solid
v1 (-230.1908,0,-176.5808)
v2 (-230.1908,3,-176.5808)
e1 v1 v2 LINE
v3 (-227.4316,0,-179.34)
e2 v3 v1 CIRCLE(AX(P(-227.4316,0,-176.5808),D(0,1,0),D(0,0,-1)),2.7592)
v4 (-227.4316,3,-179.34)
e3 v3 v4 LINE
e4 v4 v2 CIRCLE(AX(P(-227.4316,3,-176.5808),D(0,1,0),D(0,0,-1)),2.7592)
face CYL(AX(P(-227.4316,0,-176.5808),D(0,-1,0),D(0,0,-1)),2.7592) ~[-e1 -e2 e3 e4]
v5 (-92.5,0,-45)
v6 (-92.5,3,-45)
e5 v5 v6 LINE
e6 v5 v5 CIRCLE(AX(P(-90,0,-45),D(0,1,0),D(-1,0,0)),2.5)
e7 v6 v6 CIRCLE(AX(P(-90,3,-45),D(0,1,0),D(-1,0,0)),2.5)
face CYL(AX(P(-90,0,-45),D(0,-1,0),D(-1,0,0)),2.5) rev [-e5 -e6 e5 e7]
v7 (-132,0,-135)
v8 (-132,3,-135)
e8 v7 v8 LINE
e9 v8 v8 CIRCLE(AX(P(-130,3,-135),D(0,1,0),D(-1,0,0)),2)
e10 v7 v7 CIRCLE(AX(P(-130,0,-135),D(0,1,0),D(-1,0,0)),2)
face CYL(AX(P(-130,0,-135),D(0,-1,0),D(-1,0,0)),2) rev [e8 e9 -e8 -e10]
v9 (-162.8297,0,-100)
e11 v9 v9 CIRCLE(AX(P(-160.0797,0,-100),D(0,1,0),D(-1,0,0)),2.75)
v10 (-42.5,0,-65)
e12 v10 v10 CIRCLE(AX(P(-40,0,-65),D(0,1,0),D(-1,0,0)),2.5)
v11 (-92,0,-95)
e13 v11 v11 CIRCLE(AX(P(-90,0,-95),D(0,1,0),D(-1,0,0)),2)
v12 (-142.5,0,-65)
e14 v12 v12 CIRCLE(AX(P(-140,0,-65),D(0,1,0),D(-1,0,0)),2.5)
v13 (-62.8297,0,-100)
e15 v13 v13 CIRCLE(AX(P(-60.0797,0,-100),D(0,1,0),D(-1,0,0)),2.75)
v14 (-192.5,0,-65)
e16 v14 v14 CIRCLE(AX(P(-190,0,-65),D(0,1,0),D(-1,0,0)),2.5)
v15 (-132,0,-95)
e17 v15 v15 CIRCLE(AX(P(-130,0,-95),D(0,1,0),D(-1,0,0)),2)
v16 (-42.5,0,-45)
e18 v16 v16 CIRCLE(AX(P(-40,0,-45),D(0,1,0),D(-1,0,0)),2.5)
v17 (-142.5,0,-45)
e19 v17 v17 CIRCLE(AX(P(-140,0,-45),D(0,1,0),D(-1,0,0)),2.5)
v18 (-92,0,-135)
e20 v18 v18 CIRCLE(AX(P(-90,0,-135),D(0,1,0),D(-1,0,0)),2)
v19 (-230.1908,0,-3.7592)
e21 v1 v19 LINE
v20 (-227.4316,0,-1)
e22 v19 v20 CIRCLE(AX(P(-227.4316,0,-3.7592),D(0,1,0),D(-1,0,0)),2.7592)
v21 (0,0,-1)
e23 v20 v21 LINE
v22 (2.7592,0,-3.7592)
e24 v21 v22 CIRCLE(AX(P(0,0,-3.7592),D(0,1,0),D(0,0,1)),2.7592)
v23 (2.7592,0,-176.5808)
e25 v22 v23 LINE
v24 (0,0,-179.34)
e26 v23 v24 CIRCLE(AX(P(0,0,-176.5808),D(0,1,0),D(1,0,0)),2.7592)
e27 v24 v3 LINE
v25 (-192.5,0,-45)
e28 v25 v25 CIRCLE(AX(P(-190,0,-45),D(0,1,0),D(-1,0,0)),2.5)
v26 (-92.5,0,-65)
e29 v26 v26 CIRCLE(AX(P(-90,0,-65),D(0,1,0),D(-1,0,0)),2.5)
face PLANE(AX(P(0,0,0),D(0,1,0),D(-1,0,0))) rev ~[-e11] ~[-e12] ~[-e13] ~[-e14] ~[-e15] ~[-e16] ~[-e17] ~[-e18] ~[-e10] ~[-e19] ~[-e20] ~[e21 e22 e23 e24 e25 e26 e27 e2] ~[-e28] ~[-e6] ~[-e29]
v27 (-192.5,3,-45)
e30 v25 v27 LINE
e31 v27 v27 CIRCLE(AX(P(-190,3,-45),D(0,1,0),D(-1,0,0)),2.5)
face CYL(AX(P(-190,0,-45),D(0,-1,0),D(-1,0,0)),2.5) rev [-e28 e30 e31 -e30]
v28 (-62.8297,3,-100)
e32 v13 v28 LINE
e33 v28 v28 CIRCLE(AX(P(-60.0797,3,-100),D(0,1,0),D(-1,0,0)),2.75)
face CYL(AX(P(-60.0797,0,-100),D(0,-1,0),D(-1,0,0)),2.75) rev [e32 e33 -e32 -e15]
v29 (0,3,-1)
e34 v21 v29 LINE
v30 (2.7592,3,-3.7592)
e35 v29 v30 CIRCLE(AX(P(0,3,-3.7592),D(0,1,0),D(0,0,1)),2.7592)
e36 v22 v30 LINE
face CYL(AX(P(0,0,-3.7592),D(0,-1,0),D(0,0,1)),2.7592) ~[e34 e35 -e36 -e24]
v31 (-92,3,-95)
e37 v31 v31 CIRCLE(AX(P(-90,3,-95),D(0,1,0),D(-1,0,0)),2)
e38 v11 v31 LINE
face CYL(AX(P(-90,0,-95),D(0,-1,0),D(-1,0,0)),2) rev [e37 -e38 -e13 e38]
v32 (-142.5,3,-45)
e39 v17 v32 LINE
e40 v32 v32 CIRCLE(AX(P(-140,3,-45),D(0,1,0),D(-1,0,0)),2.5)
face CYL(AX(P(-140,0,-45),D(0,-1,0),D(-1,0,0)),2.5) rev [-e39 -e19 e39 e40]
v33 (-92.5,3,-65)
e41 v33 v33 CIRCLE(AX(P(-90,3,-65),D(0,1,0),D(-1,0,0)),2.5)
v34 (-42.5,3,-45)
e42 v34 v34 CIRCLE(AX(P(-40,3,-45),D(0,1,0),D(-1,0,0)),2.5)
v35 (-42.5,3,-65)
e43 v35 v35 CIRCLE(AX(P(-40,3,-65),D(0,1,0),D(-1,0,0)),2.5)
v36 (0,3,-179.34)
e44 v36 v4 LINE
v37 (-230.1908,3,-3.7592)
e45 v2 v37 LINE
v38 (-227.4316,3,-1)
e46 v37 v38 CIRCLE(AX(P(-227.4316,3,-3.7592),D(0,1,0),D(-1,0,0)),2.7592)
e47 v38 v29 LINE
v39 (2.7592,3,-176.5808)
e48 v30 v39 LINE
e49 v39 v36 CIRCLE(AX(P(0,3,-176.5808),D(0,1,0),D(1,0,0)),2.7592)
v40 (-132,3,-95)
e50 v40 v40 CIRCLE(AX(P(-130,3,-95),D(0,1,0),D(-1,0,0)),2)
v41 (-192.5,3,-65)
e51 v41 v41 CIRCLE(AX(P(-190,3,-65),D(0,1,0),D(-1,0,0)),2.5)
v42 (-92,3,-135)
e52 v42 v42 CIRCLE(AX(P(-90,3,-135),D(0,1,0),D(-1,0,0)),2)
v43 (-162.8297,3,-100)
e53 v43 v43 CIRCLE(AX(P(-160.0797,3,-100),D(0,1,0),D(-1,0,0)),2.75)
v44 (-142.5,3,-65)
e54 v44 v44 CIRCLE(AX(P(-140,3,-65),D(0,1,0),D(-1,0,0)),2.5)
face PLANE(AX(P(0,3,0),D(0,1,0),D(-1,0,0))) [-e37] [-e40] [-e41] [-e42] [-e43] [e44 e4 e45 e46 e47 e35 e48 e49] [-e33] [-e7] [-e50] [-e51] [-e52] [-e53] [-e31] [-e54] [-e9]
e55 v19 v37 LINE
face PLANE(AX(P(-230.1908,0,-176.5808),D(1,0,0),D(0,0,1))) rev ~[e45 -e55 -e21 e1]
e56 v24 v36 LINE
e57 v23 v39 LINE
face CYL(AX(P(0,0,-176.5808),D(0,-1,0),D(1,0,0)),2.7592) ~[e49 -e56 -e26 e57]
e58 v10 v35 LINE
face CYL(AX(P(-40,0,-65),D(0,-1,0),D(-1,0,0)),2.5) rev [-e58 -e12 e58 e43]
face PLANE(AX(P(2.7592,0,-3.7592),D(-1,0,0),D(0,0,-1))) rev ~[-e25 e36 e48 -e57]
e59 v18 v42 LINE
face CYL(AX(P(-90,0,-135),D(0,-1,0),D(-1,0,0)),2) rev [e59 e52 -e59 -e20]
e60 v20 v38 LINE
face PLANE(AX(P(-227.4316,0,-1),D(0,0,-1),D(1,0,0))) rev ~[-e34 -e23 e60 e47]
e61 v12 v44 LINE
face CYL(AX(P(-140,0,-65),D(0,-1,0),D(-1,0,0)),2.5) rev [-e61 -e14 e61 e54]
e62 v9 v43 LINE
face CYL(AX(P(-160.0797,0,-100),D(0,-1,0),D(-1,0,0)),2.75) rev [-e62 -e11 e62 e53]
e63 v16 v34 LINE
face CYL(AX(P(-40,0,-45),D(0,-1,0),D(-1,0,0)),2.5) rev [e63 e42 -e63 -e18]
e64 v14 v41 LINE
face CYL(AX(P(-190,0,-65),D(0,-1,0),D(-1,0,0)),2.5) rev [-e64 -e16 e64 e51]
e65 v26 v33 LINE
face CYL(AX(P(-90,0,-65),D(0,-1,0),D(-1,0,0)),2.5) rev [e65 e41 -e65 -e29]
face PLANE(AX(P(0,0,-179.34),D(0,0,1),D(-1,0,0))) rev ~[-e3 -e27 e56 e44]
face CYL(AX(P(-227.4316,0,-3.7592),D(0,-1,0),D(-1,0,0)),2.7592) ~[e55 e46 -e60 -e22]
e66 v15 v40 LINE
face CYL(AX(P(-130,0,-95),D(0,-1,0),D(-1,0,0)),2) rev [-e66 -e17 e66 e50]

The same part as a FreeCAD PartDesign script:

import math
import FreeCAD as App
import Part
import Sketcher
from FreeCAD import Vector

doc = App.newDocument("Part")
params = doc.addObject("Spreadsheet::Sheet", "Params")
for row, (alias, value) in enumerate([
    ("sketch1_diameter", "4 mm"),
    ("sketch1_diameter2", "5 mm"),
    ("sketch1_diameter3", "5.5 mm"),
    ("pad1_length", "3 mm"),
], start=1):
    params.set(f"A{row}", alias)
    params.set(f"B{row}", "=" + value)
    params.setAlias(f"B{row}", alias)

body = doc.addObject("PartDesign::Body", "Body")

sketch1 = body.newObject("Sketcher::SketchObject", "Sketch")
sketch1.AttachmentSupport = (doc.getObject("XZ_Plane"), [""])
sketch1.MapMode = "FlatFace"
sketch1.addGeometry(Part.ArcOfCircle(Part.Circle(Vector(-227.4316, -176.5808, 0), Vector(0, 0, 1), 2.7592), math.radians(180), math.radians(270)), False)
sketch1.addGeometry(Part.LineSegment(Vector(-230.1908, -176.5808, 0), Vector(-230.1908, -3.7592, 0)), False)
sketch1.addGeometry(Part.ArcOfCircle(Part.Circle(Vector(-227.4316, -3.7592, 0), Vector(0, 0, 1), 2.7592), math.radians(90), math.radians(180)), False)
sketch1.addGeometry(Part.LineSegment(Vector(-227.4316, -1, 0), Vector(0, -1, 0)), False)
sketch1.addGeometry(Part.ArcOfCircle(Part.Circle(Vector(0, -3.7592, 0), Vector(0, 0, 1), 2.7592), math.radians(0), math.radians(90)), False)
sketch1.addGeometry(Part.LineSegment(Vector(2.7592, -3.7592, 0), Vector(2.7592, -176.5808, 0)), False)
sketch1.addGeometry(Part.ArcOfCircle(Part.Circle(Vector(0, -176.5808, 0), Vector(0, 0, 1), 2.7592), math.radians(-90), math.radians(0)), False)
sketch1.addGeometry(Part.LineSegment(Vector(0, -179.34, 0), Vector(-227.4316, -179.34, 0)), False)
sketch1.addGeometry(Part.Circle(Vector(-90, -135, 0), Vector(0, 0, 1), 2), False)
sketch1.addGeometry(Part.Circle(Vector(-60.0797, -100, 0), Vector(0, 0, 1), 2.75), False)
sketch1.addGeometry(Part.Circle(Vector(-90, -95, 0), Vector(0, 0, 1), 2), False)
sketch1.addGeometry(Part.Circle(Vector(-130, -135, 0), Vector(0, 0, 1), 2), False)
sketch1.addGeometry(Part.Circle(Vector(-130, -95, 0), Vector(0, 0, 1), 2), False)
sketch1.addGeometry(Part.Circle(Vector(-160.0797, -100, 0), Vector(0, 0, 1), 2.75), False)
sketch1.addGeometry(Part.Circle(Vector(-40, -65, 0), Vector(0, 0, 1), 2.5), False)
sketch1.addGeometry(Part.Circle(Vector(-40, -45, 0), Vector(0, 0, 1), 2.5), False)
sketch1.addGeometry(Part.Circle(Vector(-90, -65, 0), Vector(0, 0, 1), 2.5), False)
sketch1.addGeometry(Part.Circle(Vector(-90, -45, 0), Vector(0, 0, 1), 2.5), False)
sketch1.addGeometry(Part.Circle(Vector(-140, -65, 0), Vector(0, 0, 1), 2.5), False)
sketch1.addGeometry(Part.Circle(Vector(-140, -45, 0), Vector(0, 0, 1), 2.5), False)
sketch1.addGeometry(Part.Circle(Vector(-190, -65, 0), Vector(0, 0, 1), 2.5), False)
sketch1.addGeometry(Part.Circle(Vector(-190, -45, 0), Vector(0, 0, 1), 2.5), False)
sketch1.addConstraint(Sketcher.Constraint("Tangent", 0, 1, 1, 1))
sketch1.addConstraint(Sketcher.Constraint("Tangent", 1, 2, 2, 2))
sketch1.addConstraint(Sketcher.Constraint("Tangent", 2, 1, 3, 1))
sketch1.addConstraint(Sketcher.Constraint("Tangent", 3, 2, 4, 2))
sketch1.addConstraint(Sketcher.Constraint("Tangent", 4, 1, 5, 1))
sketch1.addConstraint(Sketcher.Constraint("Tangent", 5, 2, 6, 2))
sketch1.addConstraint(Sketcher.Constraint("Tangent", 6, 1, 7, 1))
sketch1.addConstraint(Sketcher.Constraint("Tangent", 7, 2, 0, 2))
sketch1.addConstraint(Sketcher.Constraint("Vertical", 1))
sketch1.addConstraint(Sketcher.Constraint("Horizontal", 3))
sketch1.addConstraint(Sketcher.Constraint("Vertical", 5))
sketch1.addConstraint(Sketcher.Constraint("Horizontal", 7))
sketch1.addConstraint(Sketcher.Constraint("Equal", 0, 2))
sketch1.addConstraint(Sketcher.Constraint("Equal", 2, 4))
sketch1.addConstraint(Sketcher.Constraint("Equal", 4, 6))
sketch1.addConstraint(Sketcher.Constraint("Equal", 8, 10))
sketch1.addConstraint(Sketcher.Constraint("Equal", 10, 11))
sketch1.addConstraint(Sketcher.Constraint("Equal", 11, 12))
sketch1.addConstraint(Sketcher.Constraint("Equal", 9, 13))
sketch1.addConstraint(Sketcher.Constraint("Equal", 14, 15))
sketch1.addConstraint(Sketcher.Constraint("Equal", 15, 16))
sketch1.addConstraint(Sketcher.Constraint("Equal", 16, 17))
sketch1.addConstraint(Sketcher.Constraint("Equal", 17, 18))
sketch1.addConstraint(Sketcher.Constraint("Equal", 18, 19))
sketch1.addConstraint(Sketcher.Constraint("Equal", 19, 20))
sketch1.addConstraint(Sketcher.Constraint("Equal", 20, 21))
sketch1.addConstraint(Sketcher.Constraint("PointOnObject", 4, 3, -2))
sketch1.addConstraint(Sketcher.Constraint("Horizontal", 8, 3, 11, 3))
sketch1.addConstraint(Sketcher.Constraint("Horizontal", 10, 3, 12, 3))
sketch1.addConstraint(Sketcher.Constraint("Horizontal", 9, 3, 13, 3))
sketch1.addConstraint(Sketcher.Constraint("Horizontal", 14, 3, 16, 3))
sketch1.addConstraint(Sketcher.Constraint("Horizontal", 15, 3, 17, 3))
sketch1.addConstraint(Sketcher.Constraint("Horizontal", 16, 3, 18, 3))
sketch1.addConstraint(Sketcher.Constraint("Horizontal", 17, 3, 19, 3))
sketch1.addConstraint(Sketcher.Constraint("Horizontal", 18, 3, 20, 3))
sketch1.addConstraint(Sketcher.Constraint("Horizontal", 19, 3, 21, 3))
sketch1.addConstraint(Sketcher.Constraint("Vertical", 8, 3, 10, 3))
sketch1.addConstraint(Sketcher.Constraint("Vertical", 11, 3, 12, 3))
sketch1.addConstraint(Sketcher.Constraint("Vertical", 14, 3, 15, 3))
sketch1.addConstraint(Sketcher.Constraint("Vertical", 10, 3, 16, 3))
sketch1.addConstraint(Sketcher.Constraint("Vertical", 16, 3, 17, 3))
sketch1.addConstraint(Sketcher.Constraint("Vertical", 18, 3, 19, 3))
sketch1.addConstraint(Sketcher.Constraint("Vertical", 20, 3, 21, 3))
sketch1.addConstraint(Sketcher.Constraint("Diameter", 8, 4.0))
sketch1.addConstraint(Sketcher.Constraint("Diameter", 14, 5.0))
sketch1.addConstraint(Sketcher.Constraint("Diameter", 9, 5.5))
sketch1.addConstraint(Sketcher.Constraint("DistanceX", 3, 1, 3, 2, 227.4316))
sketch1.addConstraint(Sketcher.Constraint("DistanceY", 1, 1, 1, 2, 172.8216))
sketch1.addConstraint(Sketcher.Constraint("DistanceX", 8, 3, -1, 1, 90.0))
sketch1.addConstraint(Sketcher.Constraint("DistanceY", 8, 3, -1, 1, 135.0))
sketch1.addConstraint(Sketcher.Constraint("DistanceY", 9, 3, -1, 1, 100.0))
sketch1.addConstraint(Sketcher.Constraint("DistanceY", 10, 3, -1, 1, 95.0))
sketch1.addConstraint(Sketcher.Constraint("DistanceX", 11, 3, -1, 1, 130.0))
sketch1.addConstraint(Sketcher.Constraint("DistanceX", 14, 3, -1, 1, 40.0))
sketch1.addConstraint(Sketcher.Constraint("DistanceY", 14, 3, -1, 1, 65.0))
sketch1.addConstraint(Sketcher.Constraint("DistanceY", 15, 3, -1, 1, 45.0))
sketch1.addConstraint(Sketcher.Constraint("DistanceX", 18, 3, -1, 1, 140.0))
sketch1.addConstraint(Sketcher.Constraint("DistanceX", 20, 3, -1, 1, 190.0))
sketch1.addConstraint(Sketcher.Constraint("DistanceY", 2, 1, -1, 1, 1.0))
sketch1.addConstraint(Sketcher.Constraint("DistanceX", 13, 3, 9, 3, 100.0))
sketch1.addConstraint(Sketcher.Constraint("Radius", 0, 2.7592))
sketch1.addConstraint(Sketcher.Constraint("DistanceX", 0, 3, 9, 3, 167.352))
sketch1.setExpression("Constraints[43]", "Params.sketch1_diameter")
sketch1.setExpression("Constraints[44]", "Params.sketch1_diameter2")
sketch1.setExpression("Constraints[45]", "Params.sketch1_diameter3")
pad1 = body.newObject("PartDesign::Pad", "Pad")
pad1.Profile = sketch1
pad1.setExpression("Length", "Params.pad1_length")
pad1.Reversed = True

doc.recompute()
